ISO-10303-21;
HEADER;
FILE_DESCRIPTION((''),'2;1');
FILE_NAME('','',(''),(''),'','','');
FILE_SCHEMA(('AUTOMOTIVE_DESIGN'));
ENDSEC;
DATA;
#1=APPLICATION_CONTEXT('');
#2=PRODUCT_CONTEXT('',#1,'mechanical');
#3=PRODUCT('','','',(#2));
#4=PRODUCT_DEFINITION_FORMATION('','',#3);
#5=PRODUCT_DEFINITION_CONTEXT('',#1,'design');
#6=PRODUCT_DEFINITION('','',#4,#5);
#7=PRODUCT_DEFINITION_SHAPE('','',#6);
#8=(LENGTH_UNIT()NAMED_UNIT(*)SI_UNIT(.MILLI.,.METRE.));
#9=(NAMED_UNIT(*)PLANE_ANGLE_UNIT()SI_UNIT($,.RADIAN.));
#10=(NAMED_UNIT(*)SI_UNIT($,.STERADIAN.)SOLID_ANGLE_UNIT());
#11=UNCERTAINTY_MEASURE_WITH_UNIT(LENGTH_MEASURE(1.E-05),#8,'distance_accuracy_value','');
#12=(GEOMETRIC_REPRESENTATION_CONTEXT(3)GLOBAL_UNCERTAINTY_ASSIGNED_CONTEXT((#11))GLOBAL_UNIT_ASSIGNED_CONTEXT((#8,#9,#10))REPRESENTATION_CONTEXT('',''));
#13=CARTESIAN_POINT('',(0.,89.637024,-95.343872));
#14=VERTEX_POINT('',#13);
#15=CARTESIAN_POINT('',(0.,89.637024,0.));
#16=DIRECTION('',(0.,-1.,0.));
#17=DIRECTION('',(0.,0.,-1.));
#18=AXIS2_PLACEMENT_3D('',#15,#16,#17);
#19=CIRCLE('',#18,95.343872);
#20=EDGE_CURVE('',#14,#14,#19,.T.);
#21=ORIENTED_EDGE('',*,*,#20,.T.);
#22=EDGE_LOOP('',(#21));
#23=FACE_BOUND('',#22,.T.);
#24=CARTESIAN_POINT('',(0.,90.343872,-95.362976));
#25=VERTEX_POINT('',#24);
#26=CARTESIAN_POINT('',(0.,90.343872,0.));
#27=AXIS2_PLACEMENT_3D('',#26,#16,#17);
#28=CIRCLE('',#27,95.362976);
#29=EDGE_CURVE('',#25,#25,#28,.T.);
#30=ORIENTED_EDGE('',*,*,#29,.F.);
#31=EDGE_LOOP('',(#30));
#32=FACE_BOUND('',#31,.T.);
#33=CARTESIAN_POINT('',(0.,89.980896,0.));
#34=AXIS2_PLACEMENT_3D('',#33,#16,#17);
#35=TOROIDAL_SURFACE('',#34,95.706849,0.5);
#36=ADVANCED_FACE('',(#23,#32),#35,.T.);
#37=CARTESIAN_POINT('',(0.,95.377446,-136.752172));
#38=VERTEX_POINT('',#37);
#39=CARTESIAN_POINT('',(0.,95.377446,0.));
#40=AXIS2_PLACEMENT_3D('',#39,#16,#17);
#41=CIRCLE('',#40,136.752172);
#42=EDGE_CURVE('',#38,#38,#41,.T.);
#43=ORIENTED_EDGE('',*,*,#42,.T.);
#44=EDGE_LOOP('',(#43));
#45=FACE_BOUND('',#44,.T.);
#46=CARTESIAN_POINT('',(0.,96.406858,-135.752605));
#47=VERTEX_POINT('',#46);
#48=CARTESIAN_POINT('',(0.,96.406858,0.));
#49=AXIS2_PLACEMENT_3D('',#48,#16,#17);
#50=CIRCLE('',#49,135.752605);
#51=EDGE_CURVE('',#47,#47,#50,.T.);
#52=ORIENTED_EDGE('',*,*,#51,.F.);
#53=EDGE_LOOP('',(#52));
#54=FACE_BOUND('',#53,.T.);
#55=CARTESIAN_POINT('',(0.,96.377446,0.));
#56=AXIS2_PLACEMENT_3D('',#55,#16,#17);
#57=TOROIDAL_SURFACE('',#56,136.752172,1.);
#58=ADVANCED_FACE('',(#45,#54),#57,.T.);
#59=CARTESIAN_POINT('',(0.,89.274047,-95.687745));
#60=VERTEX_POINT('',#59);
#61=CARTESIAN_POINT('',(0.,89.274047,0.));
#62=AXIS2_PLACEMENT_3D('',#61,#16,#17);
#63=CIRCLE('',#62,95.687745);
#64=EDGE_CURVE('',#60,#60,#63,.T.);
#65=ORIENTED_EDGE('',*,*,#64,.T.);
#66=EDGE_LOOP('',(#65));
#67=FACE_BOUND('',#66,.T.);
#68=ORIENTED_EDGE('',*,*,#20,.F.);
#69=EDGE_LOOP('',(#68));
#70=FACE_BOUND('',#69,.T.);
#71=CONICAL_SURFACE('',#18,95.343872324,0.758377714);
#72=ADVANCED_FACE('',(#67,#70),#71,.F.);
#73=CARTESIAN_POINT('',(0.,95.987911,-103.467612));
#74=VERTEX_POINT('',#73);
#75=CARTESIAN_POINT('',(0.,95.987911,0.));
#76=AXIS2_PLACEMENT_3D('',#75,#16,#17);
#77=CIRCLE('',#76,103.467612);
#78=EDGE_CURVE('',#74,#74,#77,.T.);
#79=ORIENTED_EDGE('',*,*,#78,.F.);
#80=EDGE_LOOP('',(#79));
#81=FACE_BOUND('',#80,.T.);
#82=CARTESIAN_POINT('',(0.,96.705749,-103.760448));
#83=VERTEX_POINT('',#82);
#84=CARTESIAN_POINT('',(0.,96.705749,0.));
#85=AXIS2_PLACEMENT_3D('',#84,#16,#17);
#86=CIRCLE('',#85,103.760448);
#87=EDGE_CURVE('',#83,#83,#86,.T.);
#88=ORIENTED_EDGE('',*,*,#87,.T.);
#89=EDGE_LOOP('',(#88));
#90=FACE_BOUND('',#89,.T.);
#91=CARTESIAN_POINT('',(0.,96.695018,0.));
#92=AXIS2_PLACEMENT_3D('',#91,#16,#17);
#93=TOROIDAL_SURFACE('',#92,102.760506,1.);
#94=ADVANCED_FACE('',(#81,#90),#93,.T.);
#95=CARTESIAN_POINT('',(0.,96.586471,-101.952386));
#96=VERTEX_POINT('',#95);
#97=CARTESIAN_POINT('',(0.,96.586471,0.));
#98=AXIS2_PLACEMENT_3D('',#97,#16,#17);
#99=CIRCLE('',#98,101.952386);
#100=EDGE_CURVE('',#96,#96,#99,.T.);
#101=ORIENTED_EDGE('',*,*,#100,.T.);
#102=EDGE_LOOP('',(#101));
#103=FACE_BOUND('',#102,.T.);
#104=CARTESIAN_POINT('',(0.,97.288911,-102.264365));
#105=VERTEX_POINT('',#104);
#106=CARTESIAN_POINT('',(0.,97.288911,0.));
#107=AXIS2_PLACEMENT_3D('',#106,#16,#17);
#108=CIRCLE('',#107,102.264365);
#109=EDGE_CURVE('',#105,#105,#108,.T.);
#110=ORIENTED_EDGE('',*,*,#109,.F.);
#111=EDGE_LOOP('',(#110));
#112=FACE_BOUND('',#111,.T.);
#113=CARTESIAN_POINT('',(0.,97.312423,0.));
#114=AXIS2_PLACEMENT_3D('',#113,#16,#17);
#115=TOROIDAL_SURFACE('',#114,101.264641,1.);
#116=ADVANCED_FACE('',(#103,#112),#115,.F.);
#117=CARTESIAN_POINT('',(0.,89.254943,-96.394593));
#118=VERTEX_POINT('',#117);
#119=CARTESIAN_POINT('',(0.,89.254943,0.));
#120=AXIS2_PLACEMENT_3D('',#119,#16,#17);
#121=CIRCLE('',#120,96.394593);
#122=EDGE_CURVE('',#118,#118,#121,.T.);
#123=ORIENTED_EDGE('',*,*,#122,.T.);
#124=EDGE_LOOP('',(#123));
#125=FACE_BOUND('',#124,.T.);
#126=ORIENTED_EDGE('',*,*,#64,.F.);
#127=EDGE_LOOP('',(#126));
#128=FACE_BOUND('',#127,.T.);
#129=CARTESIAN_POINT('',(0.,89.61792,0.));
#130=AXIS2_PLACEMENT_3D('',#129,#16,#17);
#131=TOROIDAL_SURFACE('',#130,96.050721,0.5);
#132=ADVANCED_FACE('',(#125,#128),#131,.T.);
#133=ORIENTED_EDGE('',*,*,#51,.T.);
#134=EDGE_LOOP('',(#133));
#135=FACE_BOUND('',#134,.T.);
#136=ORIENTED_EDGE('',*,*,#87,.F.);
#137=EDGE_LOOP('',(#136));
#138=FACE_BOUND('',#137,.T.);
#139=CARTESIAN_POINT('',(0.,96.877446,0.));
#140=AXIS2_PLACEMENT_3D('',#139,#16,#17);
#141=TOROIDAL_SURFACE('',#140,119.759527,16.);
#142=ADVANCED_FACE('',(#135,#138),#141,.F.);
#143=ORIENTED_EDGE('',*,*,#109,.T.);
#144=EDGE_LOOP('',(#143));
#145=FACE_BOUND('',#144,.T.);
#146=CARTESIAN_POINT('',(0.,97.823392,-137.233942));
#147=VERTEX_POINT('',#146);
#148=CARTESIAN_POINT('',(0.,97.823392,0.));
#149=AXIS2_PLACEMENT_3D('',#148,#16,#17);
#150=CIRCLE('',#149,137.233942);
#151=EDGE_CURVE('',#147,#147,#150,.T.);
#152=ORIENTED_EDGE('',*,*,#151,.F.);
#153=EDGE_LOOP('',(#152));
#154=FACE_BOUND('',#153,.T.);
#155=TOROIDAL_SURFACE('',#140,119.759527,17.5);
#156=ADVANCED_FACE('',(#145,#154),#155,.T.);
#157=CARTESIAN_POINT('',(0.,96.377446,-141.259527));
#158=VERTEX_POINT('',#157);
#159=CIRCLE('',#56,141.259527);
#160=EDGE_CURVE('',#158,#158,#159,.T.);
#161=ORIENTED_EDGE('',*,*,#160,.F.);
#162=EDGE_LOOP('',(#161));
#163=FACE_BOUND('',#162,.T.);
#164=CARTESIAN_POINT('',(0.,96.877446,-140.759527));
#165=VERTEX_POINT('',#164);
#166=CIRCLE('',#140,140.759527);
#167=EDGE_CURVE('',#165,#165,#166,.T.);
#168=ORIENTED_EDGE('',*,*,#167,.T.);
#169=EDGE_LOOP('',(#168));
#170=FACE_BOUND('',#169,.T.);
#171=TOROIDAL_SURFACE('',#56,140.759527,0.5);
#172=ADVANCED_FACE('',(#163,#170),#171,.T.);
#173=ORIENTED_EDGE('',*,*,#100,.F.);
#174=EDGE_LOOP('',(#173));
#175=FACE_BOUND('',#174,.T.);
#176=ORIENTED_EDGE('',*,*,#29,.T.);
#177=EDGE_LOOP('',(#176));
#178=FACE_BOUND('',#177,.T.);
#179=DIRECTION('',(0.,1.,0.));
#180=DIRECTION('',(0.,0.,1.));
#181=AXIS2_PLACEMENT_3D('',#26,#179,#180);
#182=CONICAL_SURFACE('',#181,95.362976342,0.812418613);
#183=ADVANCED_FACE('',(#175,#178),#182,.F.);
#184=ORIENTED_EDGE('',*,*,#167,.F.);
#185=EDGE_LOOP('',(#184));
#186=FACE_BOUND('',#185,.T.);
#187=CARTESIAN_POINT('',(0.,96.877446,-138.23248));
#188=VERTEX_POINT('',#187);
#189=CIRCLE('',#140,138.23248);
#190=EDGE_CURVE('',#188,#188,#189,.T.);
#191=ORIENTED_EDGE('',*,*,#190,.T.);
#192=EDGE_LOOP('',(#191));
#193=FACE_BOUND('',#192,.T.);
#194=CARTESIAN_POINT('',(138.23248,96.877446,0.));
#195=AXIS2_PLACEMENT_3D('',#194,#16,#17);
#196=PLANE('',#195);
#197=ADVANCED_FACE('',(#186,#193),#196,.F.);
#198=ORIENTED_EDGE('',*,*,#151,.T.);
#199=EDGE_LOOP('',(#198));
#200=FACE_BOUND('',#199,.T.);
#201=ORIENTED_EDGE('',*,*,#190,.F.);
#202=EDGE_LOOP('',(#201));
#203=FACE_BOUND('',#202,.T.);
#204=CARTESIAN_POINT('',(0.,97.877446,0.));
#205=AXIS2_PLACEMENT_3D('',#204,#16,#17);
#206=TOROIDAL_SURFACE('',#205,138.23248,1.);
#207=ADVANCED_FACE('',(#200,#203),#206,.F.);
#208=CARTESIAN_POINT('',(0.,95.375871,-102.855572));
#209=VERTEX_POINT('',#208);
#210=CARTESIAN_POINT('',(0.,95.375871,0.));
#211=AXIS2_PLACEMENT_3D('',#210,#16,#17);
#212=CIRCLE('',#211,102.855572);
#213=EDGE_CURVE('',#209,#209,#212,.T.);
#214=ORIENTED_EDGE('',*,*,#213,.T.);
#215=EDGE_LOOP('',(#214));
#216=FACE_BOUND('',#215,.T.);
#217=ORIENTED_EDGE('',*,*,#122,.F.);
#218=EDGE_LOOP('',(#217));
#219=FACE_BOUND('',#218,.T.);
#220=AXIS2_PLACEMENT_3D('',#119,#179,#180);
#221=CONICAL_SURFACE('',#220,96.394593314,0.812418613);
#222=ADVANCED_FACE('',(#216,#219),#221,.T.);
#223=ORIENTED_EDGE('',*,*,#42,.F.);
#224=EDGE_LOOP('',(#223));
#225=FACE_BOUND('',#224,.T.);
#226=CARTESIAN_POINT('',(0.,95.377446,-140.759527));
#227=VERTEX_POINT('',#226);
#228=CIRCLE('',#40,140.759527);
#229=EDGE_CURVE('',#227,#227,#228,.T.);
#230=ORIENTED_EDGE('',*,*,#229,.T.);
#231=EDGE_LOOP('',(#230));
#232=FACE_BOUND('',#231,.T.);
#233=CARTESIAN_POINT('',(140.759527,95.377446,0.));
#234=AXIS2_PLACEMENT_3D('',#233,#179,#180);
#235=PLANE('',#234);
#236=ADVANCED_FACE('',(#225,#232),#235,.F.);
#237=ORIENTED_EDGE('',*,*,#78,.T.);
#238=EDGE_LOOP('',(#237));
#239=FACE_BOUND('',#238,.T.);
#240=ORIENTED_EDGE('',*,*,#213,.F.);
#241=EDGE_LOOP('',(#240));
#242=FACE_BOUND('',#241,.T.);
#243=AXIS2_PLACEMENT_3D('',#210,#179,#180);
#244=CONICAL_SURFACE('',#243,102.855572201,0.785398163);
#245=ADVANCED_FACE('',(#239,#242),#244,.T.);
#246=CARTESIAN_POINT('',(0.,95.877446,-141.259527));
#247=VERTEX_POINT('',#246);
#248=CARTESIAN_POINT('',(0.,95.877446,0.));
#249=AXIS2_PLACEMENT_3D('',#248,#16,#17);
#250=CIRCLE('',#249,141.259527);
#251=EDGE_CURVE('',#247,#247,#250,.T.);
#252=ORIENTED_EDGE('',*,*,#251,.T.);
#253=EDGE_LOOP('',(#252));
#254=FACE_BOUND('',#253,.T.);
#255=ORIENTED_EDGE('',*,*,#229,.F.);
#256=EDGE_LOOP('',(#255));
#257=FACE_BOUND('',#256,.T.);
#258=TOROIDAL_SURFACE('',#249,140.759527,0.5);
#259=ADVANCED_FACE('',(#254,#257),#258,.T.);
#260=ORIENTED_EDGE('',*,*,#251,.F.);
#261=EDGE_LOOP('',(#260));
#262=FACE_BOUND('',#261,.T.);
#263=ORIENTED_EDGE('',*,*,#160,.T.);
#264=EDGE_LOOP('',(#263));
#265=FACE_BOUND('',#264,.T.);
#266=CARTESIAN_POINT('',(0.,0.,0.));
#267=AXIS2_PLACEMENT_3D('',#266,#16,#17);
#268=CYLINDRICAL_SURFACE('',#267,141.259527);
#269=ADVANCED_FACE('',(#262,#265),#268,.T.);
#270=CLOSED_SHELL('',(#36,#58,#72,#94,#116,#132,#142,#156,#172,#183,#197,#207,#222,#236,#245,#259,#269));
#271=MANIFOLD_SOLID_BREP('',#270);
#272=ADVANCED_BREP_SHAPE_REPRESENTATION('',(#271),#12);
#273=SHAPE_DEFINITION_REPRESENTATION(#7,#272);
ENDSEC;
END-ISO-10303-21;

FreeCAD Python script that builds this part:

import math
import FreeCAD as App
import Part
import Sketcher

V = App.Vector
Q = App.Units.Quantity

doc = App.newDocument("Part")
params = doc.addObject("Spreadsheet::Sheet", "Params")
for row, (alias, value) in enumerate([
    ("sketch1_radius", "1 mm"),
    ("sketch1_radius2", "16 mm"),
    ("sketch1_radius3", "0.5 mm"),
    ("sketch1_radius4", "17.5 mm"),
    ("sketch1_length", "0.5 mm"),
    ("revolution_angle", "360 deg"),
], start=1):
    params.set(f"A{row}", alias)
    params.set(f"B{row}", "=" + value)
    params.setAlias(f"B{row}", alias)

body = doc.addObject("PartDesign::Body", "Body")

# Sketch on XY plane
sketch1 = doc.addObject("Sketcher::SketchObject", "Sketch")
body.addObject(sketch1)
sketch1.AttachmentSupport = (doc.XY_Plane, [""])
sketch1.MapMode = "FlatFace"
sketch1.addGeometry([
    Part.LineSegment(V(95.343872, 89.637024, 0), V(95.687745, 89.274047, 0)),  # 0
    Part.ArcOfCircle(Part.Circle(V(96.050721, 89.61792, 0), V(0, 0, 1), 0.5), math.radians(-136.548158), math.radians(-46.548158)),  # 1
    Part.LineSegment(V(96.394593, 89.254943, 0), V(102.855572, 95.375871, 0)),  # 2
    Part.LineSegment(V(102.855572, 95.375871, 0), V(103.467612, 95.987911, 0)),  # 3
    Part.ArcOfCircle(Part.Circle(V(102.760506, 96.695018, 0), V(0, 0, 1), 1), math.radians(-45), math.radians(0.614859)),  # 4
    Part.ArcOfCircle(Part.Circle(V(119.759527, 96.877446, 0), V(0, 0, 1), 16), math.radians(-1.685413), math.radians(180.614859)),  # 5
    Part.ArcOfCircle(Part.Circle(V(136.752172, 96.377446, 0), V(0, 0, 1), 1), math.radians(178.314587), math.radians(270)),  # 6
    Part.LineSegment(V(136.752172, 95.377446, 0), V(140.759527, 95.377446, 0)),  # 7
    Part.ArcOfCircle(Part.Circle(V(140.759527, 95.877446, 0), V(0, 0, 1), 0.5), math.radians(-90), math.radians(0)),  # 8
    Part.LineSegment(V(141.259527, 95.877446, 0), V(141.259527, 96.377446, 0)),  # 9
    Part.ArcOfCircle(Part.Circle(V(140.759527, 96.377446, 0), V(0, 0, 1), 0.5), math.radians(0), math.radians(90)),  # 10
    Part.LineSegment(V(140.759527, 96.877446, 0), V(138.23248, 96.877446, 0)),  # 11
    Part.ArcOfCircle(Part.Circle(V(138.23248, 97.877446, 0), V(0, 0, 1), 1), math.radians(-176.901421), math.radians(-90)),  # 12
    Part.ArcOfCircle(Part.Circle(V(119.759527, 96.877446, 0), V(0, 0, 1), 17.5), math.radians(3.098579), math.radians(178.652722)),  # 13
    Part.ArcOfCircle(Part.Circle(V(101.264641, 97.312423, 0), V(0, 0, 1), 1), math.radians(-46.548158), math.radians(-1.347278)),  # 14
    Part.LineSegment(V(101.952386, 96.586471, 0), V(95.362976, 90.343872, 0)),  # 15
    Part.ArcOfCircle(Part.Circle(V(95.706849, 89.980896, 0), V(0, 0, 1), 0.5), math.radians(133.451842), math.radians(223.451842)),  # 16
], False)
sketch1.addConstraint([
    Sketcher.Constraint("Tangent", 0, 2, 1, 1),
    Sketcher.Constraint("Tangent", 1, 2, 2, 1),
    Sketcher.Constraint("Coincident", 2, 2, 3, 1),
    Sketcher.Constraint("Tangent", 3, 2, 4, 1),
    Sketcher.Constraint("Tangent", 4, 2, 5, 2),
    Sketcher.Constraint("Tangent", 5, 1, 6, 1),
    Sketcher.Constraint("Tangent", 6, 2, 7, 1),
    Sketcher.Constraint("Tangent", 7, 2, 8, 1),
    Sketcher.Constraint("Tangent", 8, 2, 9, 1),
    Sketcher.Constraint("Tangent", 9, 2, 10, 1),
    Sketcher.Constraint("Tangent", 10, 2, 11, 1),
    Sketcher.Constraint("Tangent", 11, 2, 12, 2),
    Sketcher.Constraint("Tangent", 12, 1, 13, 1),
    Sketcher.Constraint("Tangent", 13, 2, 14, 2),
    Sketcher.Constraint("Tangent", 14, 1, 15, 1),
    Sketcher.Constraint("Tangent", 15, 2, 16, 1),
    Sketcher.Constraint("Tangent", 16, 2, 0, 1),
    Sketcher.Constraint("Horizontal", 7),
    Sketcher.Constraint("Vertical", 9),
    Sketcher.Constraint("Horizontal", 11),
    Sketcher.Constraint("Coincident", 13, 3, 5, 3),
    Sketcher.Constraint("Equal", 4, 6),
    Sketcher.Constraint("Equal", 1, 8),
    Sketcher.Constraint("Equal", 8, 10),
    Sketcher.Constraint("Equal", 6, 12),
    Sketcher.Constraint("Equal", 12, 14),
    Sketcher.Constraint("Equal", 10, 16),
    Sketcher.Constraint("Perpendicular", 0, 2),
    Sketcher.Constraint("Parallel", 2, 15),
    Sketcher.Constraint("Horizontal", 6, 3, 10, 3),
    Sketcher.Constraint("Horizontal", 13, 3, 10, 2),
    Sketcher.Constraint("Radius", 4, Q("1 mm")),
    Sketcher.Constraint("Radius", 5, Q("16 mm")),
    Sketcher.Constraint("Radius", 1, Q("0.5 mm")),
    Sketcher.Constraint("Radius", 13, Q("17.5 mm")),
    Sketcher.Constraint("Angle", 3, Q("45 deg")),
    Sketcher.Constraint("DistanceX", 5, 3, 8, 3, Q("21 mm")),
    Sketcher.Constraint("Distance", 0, Q("0.5 mm")),
    Sketcher.Constraint("Distance", 2, Q("8.9 mm")),
    Sketcher.Constraint("DistanceY", 15, 2, 2, 2, Q("5.031998 mm")),
    Sketcher.Constraint("DistanceY", 1, 3, 4, 3, Q("7.077098 mm")),
    Sketcher.Constraint("DistanceY", 0, 2, 5, 3, Q("7.603399 mm")),
    Sketcher.Constraint("DistanceX", -1, 1, 1, 3, Q("96.050721 mm")),
    Sketcher.Constraint("DistanceY", -1, 1, 1, 3, Q("89.61792 mm")),
])
sketch1.setExpression("Constraints[31]", "Params.sketch1_radius")
sketch1.setExpression("Constraints[32]", "Params.sketch1_radius2")
sketch1.setExpression("Constraints[33]", "Params.sketch1_radius3")
sketch1.setExpression("Constraints[34]", "Params.sketch1_radius4")
sketch1.setExpression("Constraints[37]", "Params.sketch1_length")
revolution = doc.addObject("PartDesign::Revolution", "Revolution")
body.addObject(revolution)
revolution.Profile = sketch1
revolution.ReferenceAxis = (sketch1, ["V_Axis"])
revolution.setExpression("Angle", "Params.revolution_angle")

doc.recompute()
